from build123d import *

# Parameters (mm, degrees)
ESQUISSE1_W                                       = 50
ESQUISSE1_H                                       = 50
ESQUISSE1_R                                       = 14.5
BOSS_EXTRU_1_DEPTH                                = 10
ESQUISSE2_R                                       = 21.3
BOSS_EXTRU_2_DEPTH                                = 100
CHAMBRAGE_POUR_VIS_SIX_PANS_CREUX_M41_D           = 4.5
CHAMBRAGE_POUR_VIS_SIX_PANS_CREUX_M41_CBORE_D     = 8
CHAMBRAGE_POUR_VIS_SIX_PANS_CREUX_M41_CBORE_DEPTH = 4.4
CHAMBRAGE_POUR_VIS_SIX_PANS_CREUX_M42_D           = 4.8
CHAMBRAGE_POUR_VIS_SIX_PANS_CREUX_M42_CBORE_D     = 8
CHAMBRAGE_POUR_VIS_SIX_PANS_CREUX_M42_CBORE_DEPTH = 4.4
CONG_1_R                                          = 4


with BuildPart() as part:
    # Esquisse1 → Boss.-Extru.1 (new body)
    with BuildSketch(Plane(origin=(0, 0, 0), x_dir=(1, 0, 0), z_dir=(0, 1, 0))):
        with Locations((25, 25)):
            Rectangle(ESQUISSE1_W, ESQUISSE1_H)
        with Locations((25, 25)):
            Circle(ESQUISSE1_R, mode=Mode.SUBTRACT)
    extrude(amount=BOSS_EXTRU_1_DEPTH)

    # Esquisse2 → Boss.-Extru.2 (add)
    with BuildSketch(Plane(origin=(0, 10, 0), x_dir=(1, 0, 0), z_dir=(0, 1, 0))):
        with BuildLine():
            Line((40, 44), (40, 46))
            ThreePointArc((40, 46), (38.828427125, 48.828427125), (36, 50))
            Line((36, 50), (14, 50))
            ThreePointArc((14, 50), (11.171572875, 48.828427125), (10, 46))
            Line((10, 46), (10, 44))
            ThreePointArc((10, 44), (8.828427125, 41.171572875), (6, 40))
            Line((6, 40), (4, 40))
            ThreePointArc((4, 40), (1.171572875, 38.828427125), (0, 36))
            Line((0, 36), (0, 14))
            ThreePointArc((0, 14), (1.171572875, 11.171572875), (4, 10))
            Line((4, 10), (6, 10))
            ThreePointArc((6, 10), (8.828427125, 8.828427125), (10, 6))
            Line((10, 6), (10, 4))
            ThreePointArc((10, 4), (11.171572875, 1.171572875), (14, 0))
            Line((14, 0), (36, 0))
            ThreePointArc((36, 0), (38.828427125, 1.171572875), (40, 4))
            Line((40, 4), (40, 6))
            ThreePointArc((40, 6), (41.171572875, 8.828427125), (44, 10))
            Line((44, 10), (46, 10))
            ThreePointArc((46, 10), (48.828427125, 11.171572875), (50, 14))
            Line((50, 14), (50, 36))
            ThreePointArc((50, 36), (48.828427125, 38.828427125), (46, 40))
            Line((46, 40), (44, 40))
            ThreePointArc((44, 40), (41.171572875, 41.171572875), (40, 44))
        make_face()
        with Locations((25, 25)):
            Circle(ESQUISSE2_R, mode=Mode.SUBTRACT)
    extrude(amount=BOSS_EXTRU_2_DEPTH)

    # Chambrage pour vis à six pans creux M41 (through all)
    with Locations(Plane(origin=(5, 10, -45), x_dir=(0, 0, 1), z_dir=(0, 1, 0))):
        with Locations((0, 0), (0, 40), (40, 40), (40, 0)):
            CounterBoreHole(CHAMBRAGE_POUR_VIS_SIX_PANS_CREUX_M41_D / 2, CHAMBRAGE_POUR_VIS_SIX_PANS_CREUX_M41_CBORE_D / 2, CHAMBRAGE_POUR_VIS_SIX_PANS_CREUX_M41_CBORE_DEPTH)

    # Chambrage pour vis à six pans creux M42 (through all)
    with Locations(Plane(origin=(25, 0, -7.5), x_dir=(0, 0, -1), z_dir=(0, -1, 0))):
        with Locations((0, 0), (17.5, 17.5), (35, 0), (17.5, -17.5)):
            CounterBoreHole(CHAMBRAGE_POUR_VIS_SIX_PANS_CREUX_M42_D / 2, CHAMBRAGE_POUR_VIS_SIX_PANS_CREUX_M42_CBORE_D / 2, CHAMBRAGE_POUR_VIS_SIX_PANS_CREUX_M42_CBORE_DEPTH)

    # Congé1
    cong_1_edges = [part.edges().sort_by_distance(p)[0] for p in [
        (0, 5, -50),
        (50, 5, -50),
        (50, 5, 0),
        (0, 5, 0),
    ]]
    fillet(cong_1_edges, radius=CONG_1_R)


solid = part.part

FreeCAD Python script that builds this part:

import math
import FreeCAD as App
import Part
import Sketcher
from FreeCAD import Vector


def edges_at(feature, points):
    """Names of the edges that pass closest to the given points."""
    edges = feature.Shape.Edges
    near = lambda p: min(range(len(edges)), key=lambda i: edges[i].distToShape(Part.Vertex(*p))[0])
    return sorted({f"Edge{near(p) + 1}" for p in points})

doc = App.newDocument("Part")
body = doc.addObject("PartDesign::Body", "Body")

# Sketch on XZ plane
sketch1 = body.newObject("Sketcher::SketchObject", "Sketch")
sketch1.AttachmentSupport = (doc.getObject("XZ_Plane"), [""])
sketch1.MapMode = "FlatFace"
sketch1.addGeometry(Part.LineSegment(Vector(0, -50, 0), Vector(0, 0, 0)), False)
sketch1.addGeometry(Part.LineSegment(Vector(0, 0, 0), Vector(50, 0, 0)), False)
sketch1.addGeometry(Part.LineSegment(Vector(50, 0, 0), Vector(50, -50, 0)), False)
sketch1.addGeometry(Part.LineSegment(Vector(50, -50, 0), Vector(0, -50, 0)), False)
sketch1.addGeometry(Part.Circle(Vector(25, -25, 0), Vector(0, 0, 1), 14), False)
sketch1.addConstraint(Sketcher.Constraint("Coincident", 0, 2, 1, 1))
sketch1.addConstraint(Sketcher.Constraint("Coincident", 1, 2, 2, 1))
sketch1.addConstraint(Sketcher.Constraint("Coincident", 2, 2, 3, 1))
sketch1.addConstraint(Sketcher.Constraint("Coincident", 3, 2, 0, 1))
sketch1.addConstraint(Sketcher.Constraint("Vertical", 0))
sketch1.addConstraint(Sketcher.Constraint("Horizontal", 1))
sketch1.addConstraint(Sketcher.Constraint("Vertical", 2))
sketch1.addConstraint(Sketcher.Constraint("Horizontal", 3))
sketch1.addConstraint(Sketcher.Constraint("Coincident", 0, 2, -1, 1))
sketch1.addConstraint(Sketcher.Constraint("Equal", 3, 0))
sketch1.addConstraint(Sketcher.Constraint("Diameter", 4, 29.0))
sketch1.addConstraint(Sketcher.Constraint("DistanceX", 1, 1, 1, 2, 50.0))
sketch1.addConstraint(Sketcher.Constraint("DistanceX", -1, 1, 4, 3, 25.0))
sketch1.addConstraint(Sketcher.Constraint("DistanceY", 4, 3, -1, 1, 25.0))
pad1 = body.newObject("PartDesign::Pad", "Pad")
pad1.Profile = sketch1
pad1.Length = 10
pad1.Reversed = True

# Sketch on XZ plane
sketch2 = body.newObject("Sketcher::SketchObject", "Sketch001")
sketch2.AttachmentSupport = (doc.getObject("XZ_Plane"), [""])
sketch2.MapMode = "FlatFace"
sketch2.AttachmentOffset = App.Placement(Vector(0, 0, -10), App.Rotation())
sketch2.addGeometry(Part.LineSegment(Vector(40, -44, 0), Vector(40, -46, 0)), False)
sketch2.addGeometry(Part.ArcOfCircle(Part.Circle(Vector(36, -46, 0), Vector(0, 0, 1), 4), math.radians(-90), math.radians(0)), False)
sketch2.addGeometry(Part.LineSegment(Vector(36, -50, 0), Vector(14, -50, 0)), False)
sketch2.addGeometry(Part.ArcOfCircle(Part.Circle(Vector(14, -46, 0), Vector(0, 0, 1), 4), math.radians(180), math.radians(270)), False)
sketch2.addGeometry(Part.LineSegment(Vector(10, -46, 0), Vector(10, -44, 0)), False)
sketch2.addGeometry(Part.ArcOfCircle(Part.Circle(Vector(6, -44, 0), Vector(0, 0, 1), 4), math.radians(0), math.radians(90)), False)
sketch2.addGeometry(Part.LineSegment(Vector(6, -40, 0), Vector(4, -40, 0)), False)
sketch2.addGeometry(Part.ArcOfCircle(Part.Circle(Vector(4, -36, 0), Vector(0, 0, 1), 4), math.radians(180), math.radians(270)), False)
sketch2.addGeometry(Part.LineSegment(Vector(0, -36, 0), Vector(0, -14, 0)), False)
sketch2.addGeometry(Part.ArcOfCircle(Part.Circle(Vector(4, -14, 0), Vector(0, 0, 1), 4), math.radians(90), math.radians(180)), False)
sketch2.addGeometry(Part.LineSegment(Vector(4, -10, 0), Vector(6, -10, 0)), False)
sketch2.addGeometry(Part.ArcOfCircle(Part.Circle(Vector(6, -6, 0), Vector(0, 0, 1), 4), math.radians(-90), math.radians(0)), False)
sketch2.addGeometry(Part.LineSegment(Vector(10, -6, 0), Vector(10, -4, 0)), False)
sketch2.addGeometry(Part.ArcOfCircle(Part.Circle(Vector(14, -4, 0), Vector(0, 0, 1), 4), math.radians(90), math.radians(180)), False)
sketch2.addGeometry(Part.LineSegment(Vector(14, 0, 0), Vector(36, 0, 0)), False)
sketch2.addGeometry(Part.ArcOfCircle(Part.Circle(Vector(36, -4, 0), Vector(0, 0, 1), 4), math.radians(0), math.radians(90)), False)
sketch2.addGeometry(Part.LineSegment(Vector(40, -4, 0), Vector(40, -6, 0)), False)
sketch2.addGeometry(Part.ArcOfCircle(Part.Circle(Vector(44, -6, 0), Vector(0, 0, 1), 4), math.radians(180), math.radians(270)), False)
sketch2.addGeometry(Part.LineSegment(Vector(44, -10, 0), Vector(46, -10, 0)), False)
sketch2.addGeometry(Part.ArcOfCircle(Part.Circle(Vector(46, -14, 0), Vector(0, 0, 1), 4), math.radians(0), math.radians(90)), False)
sketch2.addGeometry(Part.LineSegment(Vector(50, -14, 0), Vector(50, -36, 0)), False)
sketch2.addGeometry(Part.ArcOfCircle(Part.Circle(Vector(46, -36, 0), Vector(0, 0, 1), 4), math.radians(-90), math.radians(0)), False)
sketch2.addGeometry(Part.LineSegment(Vector(46, -40, 0), Vector(44, -40, 0)), False)
sketch2.addGeometry(Part.ArcOfCircle(Part.Circle(Vector(44, -44, 0), Vector(0, 0, 1), 4), math.radians(90), math.radians(180)), False)
sketch2.addGeometry(Part.Circle(Vector(25, -25, 0), Vector(0, 0, 1), 21.3), False)
sketch2.addConstraint(Sketcher.Constraint("Tangent", 0, 2, 1, 2))
sketch2.addConstraint(Sketcher.Constraint("Tangent", 1, 1, 2, 1))
sketch2.addConstraint(Sketcher.Constraint("Tangent", 2, 2, 3, 2))
sketch2.addConstraint(Sketcher.Constraint("Tangent", 3, 1, 4, 1))
sketch2.addConstraint(Sketcher.Constraint("Tangent", 4, 2, 5, 1))
sketch2.addConstraint(Sketcher.Constraint("Tangent", 5, 2, 6, 1))
sketch2.addConstraint(Sketcher.Constraint("Tangent", 6, 2, 7, 2))
sketch2.addConstraint(Sketcher.Constraint("Tangent", 7, 1, 8, 1))
sketch2.addConstraint(Sketcher.Constraint("Tangent", 8, 2, 9, 2))
sketch2.addConstraint(Sketcher.Constraint("Tangent", 9, 1, 10, 1))
sketch2.addConstraint(Sketcher.Constraint("Tangent", 10, 2, 11, 1))
sketch2.addConstraint(Sketcher.Constraint("Tangent", 11, 2, 12, 1))
sketch2.addConstraint(Sketcher.Constraint("Tangent", 12, 2, 13, 2))
sketch2.addConstraint(Sketcher.Constraint("Tangent", 13, 1, 14, 1))
sketch2.addConstraint(Sketcher.Constraint("Tangent", 14, 2, 15, 2))
sketch2.addConstraint(Sketcher.Constraint("Tangent", 15, 1, 16, 1))
sketch2.addConstraint(Sketcher.Constraint("Tangent", 16, 2, 17, 1))
sketch2.addConstraint(Sketcher.Constraint("Tangent", 17, 2, 18, 1))
sketch2.addConstraint(Sketcher.Constraint("Tangent", 18, 2, 19, 2))
sketch2.addConstraint(Sketcher.Constraint("Tangent", 19, 1, 20, 1))
sketch2.addConstraint(Sketcher.Constraint("Tangent", 20, 2, 21, 2))
sketch2.addConstraint(Sketcher.Constraint("Tangent", 21, 1, 22, 1))
sketch2.addConstraint(Sketcher.Constraint("Tangent", 22, 2, 23, 1))
sketch2.addConstraint(Sketcher.Constraint("Tangent", 23, 2, 0, 1))
sketch2.addConstraint(Sketcher.Constraint("Vertical", 0))
sketch2.addConstraint(Sketcher.Constraint("Horizontal", 2))
sketch2.addConstraint(Sketcher.Constraint("Vertical", 4))
sketch2.addConstraint(Sketcher.Constraint("Horizontal", 6))
sketch2.addConstraint(Sketcher.Constraint("Vertical", 8))
sketch2.addConstraint(Sketcher.Constraint("Horizontal", 10))
sketch2.addConstraint(Sketcher.Constraint("Vertical", 12))
sketch2.addConstraint(Sketcher.Constraint("Horizontal", 14))
sketch2.addConstraint(Sketcher.Constraint("Vertical", 16))
sketch2.addConstraint(Sketcher.Constraint("Horizontal", 18))
sketch2.addConstraint(Sketcher.Constraint("Vertical", 20))
sketch2.addConstraint(Sketcher.Constraint("Horizontal", 22))
sketch2.addConstraint(Sketcher.Constraint("Equal", 1, 3))
sketch2.addConstraint(Sketcher.Constraint("Equal", 3, 5))
sketch2.addConstraint(Sketcher.Constraint("Equal", 5, 7))
sketch2.addConstraint(Sketcher.Constraint("Equal", 7, 9))
sketch2.addConstraint(Sketcher.Constraint("Equal", 9, 11))
sketch2.addConstraint(Sketcher.Constraint("Equal", 11, 13))
sketch2.addConstraint(Sketcher.Constraint("Equal", 13, 15))
sketch2.addConstraint(Sketcher.Constraint("Equal", 15, 17))
sketch2.addConstraint(Sketcher.Constraint("Equal", 17, 19))
sketch2.addConstraint(Sketcher.Constraint("Equal", 19, 21))
sketch2.addConstraint(Sketcher.Constraint("Equal", 21, 23))
sketch2.addConstraint(Sketcher.Constraint("PointOnObject", 7, 1, -2))
sketch2.addConstraint(Sketcher.Constraint("PointOnObject", 13, 1, -1))
sketch2.addConstraint(Sketcher.Constraint("Horizontal", 11, 3, 17, 3))
sketch2.addConstraint(Sketcher.Constraint("Horizontal", 7, 3, 21, 3))
sketch2.addConstraint(Sketcher.Constraint("Vertical", 5, 3, 11, 3))
sketch2.addConstraint(Sketcher.Constraint("Vertical", 1, 3, 15, 3))
sketch2.addConstraint(Sketcher.Constraint("Equal", 10, 18))
sketch2.addConstraint(Sketcher.Constraint("Equal", 22, 0))
sketch2.addConstraint(Sketcher.Constraint("Equal", 14, 8))
sketch2.addConstraint(Sketcher.Constraint("Equal", 4, 12))
sketch2.addConstraint(Sketcher.Constraint("Radius", 1, 4.0))
sketch2.addConstraint(Sketcher.Constraint("Diameter", 24, 42.6))
sketch2.addConstraint(Sketcher.Constraint("DistanceX", 2, 2, 2, 1, 22.0))
sketch2.addConstraint(Sketcher.Constraint("DistanceX", 6, 2, 6, 1, 2.0))
sketch2.addConstraint(Sketcher.Constraint("DistanceX", -1, 1, 24, 3, 25.0))
sketch2.addConstraint(Sketcher.Constraint("DistanceY", 24, 3, -1, 1, 25.0))
pad2 = body.newObject("PartDesign::Pad", "Pad001")
pad2.Profile = sketch2
pad2.Length = 100
pad2.Reversed = True

# Sketch on XZ plane
sketch3 = body.newObject("Sketcher::SketchObject", "Sketch002")
sketch3.AttachmentSupport = (doc.getObject("XZ_Plane"), [""])
sketch3.MapMode = "FlatFace"
sketch3.AttachmentOffset = App.Placement(Vector(0, 0, -10), App.Rotation())
sketch3.addGeometry(Part.Circle(Vector(5, -45, 0), Vector(0, 0, 1), 2.2), False)
sketch3.addGeometry(Part.Circle(Vector(45, -45, 0), Vector(0, 0, 1), 2.2), False)
sketch3.addGeometry(Part.Circle(Vector(45, -5, 0), Vector(0, 0, 1), 2.2), False)
sketch3.addGeometry(Part.Circle(Vector(5, -5, 0), Vector(0, 0, 1), 2.2), False)
sketch3.addConstraint(Sketcher.Constraint("Equal", 0, 1))
sketch3.addConstraint(Sketcher.Constraint("Equal", 1, 2))
sketch3.addConstraint(Sketcher.Constraint("Equal", 2, 3))
sketch3.addConstraint(Sketcher.Constraint("Horizontal", 0, 3, 1, 3))
sketch3.addConstraint(Sketcher.Constraint("Horizontal", 2, 3, 3, 3))
sketch3.addConstraint(Sketcher.Constraint("Vertical", 1, 3, 2, 3))
sketch3.addConstraint(Sketcher.Constraint("Vertical", 0, 3, 3, 3))
sketch3.addConstraint(Sketcher.Constraint("Diameter", 0, 4.5))
sketch3.addConstraint(Sketcher.Constraint("DistanceX", -1, 1, 0, 3, 5.0))
sketch3.addConstraint(Sketcher.Constraint("DistanceY", 0, 3, -1, 1, 45.0))
sketch3.addConstraint(Sketcher.Constraint("DistanceX", -1, 1, 1, 3, 45.0))
sketch3.addConstraint(Sketcher.Constraint("DistanceY", 2, 3, -1, 1, 5.0))
doc.recompute()
hole = body.newObject("PartDesign::Hole", "Hole")
hole.Profile = sketch3
hole.ThreadType = "None"
hole.Diameter = 4.5
hole.DepthType = "ThroughAll"
hole.HoleCutType = "Counterbore"
hole.HoleCutDiameter = 8
hole.HoleCutDepth = 4.4
hole.Reversed = True

# Sketch on XZ plane
sketch4 = body.newObject("Sketcher::SketchObject", "Sketch003")
sketch4.AttachmentSupport = (doc.getObject("XZ_Plane"), [""])
sketch4.MapMode = "FlatFace"
sketch4.addGeometry(Part.Circle(Vector(25, -7.5, 0), Vector(0, 0, 1), 2.4), False)
sketch4.addGeometry(Part.Circle(Vector(42.5, -25, 0), Vector(0, 0, 1), 2.4), False)
sketch4.addGeometry(Part.Circle(Vector(25, -42.5, 0), Vector(0, 0, 1), 2.4), False)
sketch4.addGeometry(Part.Circle(Vector(7.5, -25, 0), Vector(0, 0, 1), 2.4), False)
sketch4.addConstraint(Sketcher.Constraint("Equal", 0, 1))
sketch4.addConstraint(Sketcher.Constraint("Equal", 1, 2))
sketch4.addConstraint(Sketcher.Constraint("Equal", 2, 3))
sketch4.addConstraint(Sketcher.Constraint("Horizontal", 1, 3, 3, 3))
sketch4.addConstraint(Sketcher.Constraint("Vertical", 0, 3, 2, 3))
sketch4.addConstraint(Sketcher.Constraint("Diameter", 0, 4.8))
sketch4.addConstraint(Sketcher.Constraint("DistanceX", -1, 1, 0, 3, 25.0))
sketch4.addConstraint(Sketcher.Constraint("DistanceY", 1, 3, -1, 1, 25.0))
sketch4.addConstraint(Sketcher.Constraint("DistanceY", 2, 3, 0, 3, 35.0))
sketch4.addConstraint(Sketcher.Constraint("DistanceX", 3, 3, 1, 3, 35.0))
sketch4.addConstraint(Sketcher.Constraint("DistanceY", 0, 3, -1, 1, 7.5))
sketch4.addConstraint(Sketcher.Constraint("DistanceX", -1, 1, 1, 3, 42.5))
doc.recompute()
hole2 = body.newObject("PartDesign::Hole", "Hole001")
hole2.Profile = sketch4
hole2.ThreadType = "None"
hole2.Diameter = 4.8
hole2.DepthType = "ThroughAll"
hole2.HoleCutType = "Counterbore"
hole2.HoleCutDiameter = 8
hole2.HoleCutDepth = 4.4
doc.recompute()

fillet = body.newObject("PartDesign::Fillet", "Fillet")
fillet.Base = (hole2, edges_at(hole2, [
    (0, 5, -50),
    (50, 5, -50),
    (50, 5, 0),
    (0, 5, 0),
]))
fillet.Radius = 4

doc.recompute()
